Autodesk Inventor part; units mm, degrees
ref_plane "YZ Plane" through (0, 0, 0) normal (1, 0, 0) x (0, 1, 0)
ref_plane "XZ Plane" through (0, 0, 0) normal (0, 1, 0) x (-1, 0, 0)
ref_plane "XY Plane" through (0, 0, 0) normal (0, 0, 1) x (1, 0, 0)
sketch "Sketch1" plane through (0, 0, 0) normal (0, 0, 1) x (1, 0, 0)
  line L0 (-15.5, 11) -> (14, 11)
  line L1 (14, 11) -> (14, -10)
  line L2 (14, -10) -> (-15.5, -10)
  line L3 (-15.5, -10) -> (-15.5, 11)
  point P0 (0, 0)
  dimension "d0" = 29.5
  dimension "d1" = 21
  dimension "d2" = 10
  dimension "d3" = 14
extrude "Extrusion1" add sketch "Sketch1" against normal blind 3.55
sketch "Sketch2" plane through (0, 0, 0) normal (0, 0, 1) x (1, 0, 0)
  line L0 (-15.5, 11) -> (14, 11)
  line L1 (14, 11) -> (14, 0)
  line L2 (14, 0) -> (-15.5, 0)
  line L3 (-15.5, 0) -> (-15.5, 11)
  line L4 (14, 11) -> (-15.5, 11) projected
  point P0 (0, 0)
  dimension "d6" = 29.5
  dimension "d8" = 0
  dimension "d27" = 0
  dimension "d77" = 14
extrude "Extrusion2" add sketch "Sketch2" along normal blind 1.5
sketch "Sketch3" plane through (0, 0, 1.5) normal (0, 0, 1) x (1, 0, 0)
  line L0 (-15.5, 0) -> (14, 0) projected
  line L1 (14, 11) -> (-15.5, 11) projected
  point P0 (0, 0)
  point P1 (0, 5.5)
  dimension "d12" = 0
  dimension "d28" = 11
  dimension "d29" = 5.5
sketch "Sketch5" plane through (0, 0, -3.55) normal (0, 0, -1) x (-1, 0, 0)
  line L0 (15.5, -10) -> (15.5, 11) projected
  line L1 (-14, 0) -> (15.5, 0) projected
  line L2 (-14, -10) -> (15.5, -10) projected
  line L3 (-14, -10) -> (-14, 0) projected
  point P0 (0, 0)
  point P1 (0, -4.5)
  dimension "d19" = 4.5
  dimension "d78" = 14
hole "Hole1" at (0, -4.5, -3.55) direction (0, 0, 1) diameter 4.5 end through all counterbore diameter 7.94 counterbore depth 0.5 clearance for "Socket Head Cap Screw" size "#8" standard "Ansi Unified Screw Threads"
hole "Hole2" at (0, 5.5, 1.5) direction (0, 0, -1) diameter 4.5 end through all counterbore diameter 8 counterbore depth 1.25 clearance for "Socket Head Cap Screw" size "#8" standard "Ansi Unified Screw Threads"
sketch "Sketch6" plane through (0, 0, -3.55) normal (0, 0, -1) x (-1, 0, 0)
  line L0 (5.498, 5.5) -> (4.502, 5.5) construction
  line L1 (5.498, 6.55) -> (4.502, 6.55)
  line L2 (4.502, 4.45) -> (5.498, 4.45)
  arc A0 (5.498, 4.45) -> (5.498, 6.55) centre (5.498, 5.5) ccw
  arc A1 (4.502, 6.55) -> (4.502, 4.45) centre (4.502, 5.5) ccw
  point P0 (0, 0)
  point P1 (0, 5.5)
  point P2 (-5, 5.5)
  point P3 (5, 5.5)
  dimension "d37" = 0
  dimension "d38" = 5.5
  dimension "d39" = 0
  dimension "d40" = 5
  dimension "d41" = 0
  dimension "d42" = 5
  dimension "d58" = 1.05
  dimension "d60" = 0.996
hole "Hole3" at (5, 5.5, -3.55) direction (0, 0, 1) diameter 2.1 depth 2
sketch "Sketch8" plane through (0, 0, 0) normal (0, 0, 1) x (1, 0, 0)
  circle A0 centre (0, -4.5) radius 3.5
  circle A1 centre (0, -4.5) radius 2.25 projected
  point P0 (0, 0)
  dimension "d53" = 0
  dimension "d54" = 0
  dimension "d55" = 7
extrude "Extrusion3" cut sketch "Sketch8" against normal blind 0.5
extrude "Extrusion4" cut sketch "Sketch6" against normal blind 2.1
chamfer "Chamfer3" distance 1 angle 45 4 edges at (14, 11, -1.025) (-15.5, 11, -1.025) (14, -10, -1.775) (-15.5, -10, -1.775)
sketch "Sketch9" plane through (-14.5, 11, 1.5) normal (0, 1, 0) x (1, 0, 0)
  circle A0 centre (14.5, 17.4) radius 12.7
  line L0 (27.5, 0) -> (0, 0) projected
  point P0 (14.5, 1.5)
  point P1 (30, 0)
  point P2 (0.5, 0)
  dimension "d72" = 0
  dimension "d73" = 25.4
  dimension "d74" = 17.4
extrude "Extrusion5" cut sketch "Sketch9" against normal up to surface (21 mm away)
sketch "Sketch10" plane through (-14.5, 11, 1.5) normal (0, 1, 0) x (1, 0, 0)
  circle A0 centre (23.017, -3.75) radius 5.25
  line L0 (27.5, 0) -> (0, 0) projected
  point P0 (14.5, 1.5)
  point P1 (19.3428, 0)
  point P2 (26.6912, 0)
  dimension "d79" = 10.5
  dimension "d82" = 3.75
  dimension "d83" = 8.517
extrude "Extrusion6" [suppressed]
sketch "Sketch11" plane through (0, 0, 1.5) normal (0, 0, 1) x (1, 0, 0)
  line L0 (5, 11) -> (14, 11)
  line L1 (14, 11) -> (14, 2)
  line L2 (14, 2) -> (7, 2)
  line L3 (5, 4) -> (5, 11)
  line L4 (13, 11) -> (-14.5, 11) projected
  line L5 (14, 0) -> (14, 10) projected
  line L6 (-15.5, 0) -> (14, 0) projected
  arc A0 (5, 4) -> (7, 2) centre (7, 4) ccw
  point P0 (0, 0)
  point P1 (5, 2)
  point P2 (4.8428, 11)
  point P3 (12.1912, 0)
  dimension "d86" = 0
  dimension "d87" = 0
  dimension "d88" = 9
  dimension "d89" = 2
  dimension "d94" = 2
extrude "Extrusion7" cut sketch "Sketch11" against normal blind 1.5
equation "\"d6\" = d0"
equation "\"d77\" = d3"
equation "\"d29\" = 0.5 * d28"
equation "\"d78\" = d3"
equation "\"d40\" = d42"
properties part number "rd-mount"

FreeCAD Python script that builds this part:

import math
import FreeCAD as App
import Part
import Sketcher
Q = App.Units.Quantity


def edges_at(feature, points):
    """Names of the edges that pass closest to the given points."""
    edges = feature.Shape.Edges
    near = lambda p: min(range(len(edges)), key=lambda i: edges[i].distToShape(Part.Vertex(*p))[0])
    return sorted({f"Edge{near(p) + 1}" for p in points})


def add_polygon(sketch, points):
    """Adds a closed chain of lines whose ends are joined by coincident constraints."""
    first, n = sketch.GeometryCount, len(points)
    for a, b in zip(points, points[1:] + points[:1]):
        sketch.addGeometry(Part.LineSegment(App.Vector(*a, 0), App.Vector(*b, 0)), False)
    for i in range(n):
        sketch.addConstraint(Sketcher.Constraint("Coincident", first + i, 2, first + (i + 1) % n, 1))

doc = App.newDocument("Part")
body = doc.addObject("PartDesign::Body", "Body")

sketch1 = doc.addObject("Sketcher::SketchObject", "Sketch")
body.addObject(sketch1)
sketch1.AttachmentSupport = (doc.XY_Plane, [""])
sketch1.MapMode = "FlatFace"
add_polygon(sketch1, [(14, 11), (-15.5, 11), (-15.5, -10), (14, -10)])
sketch1.addConstraint(Sketcher.Constraint("Horizontal", 0))
sketch1.addConstraint(Sketcher.Constraint("Vertical", 1))
sketch1.addConstraint(Sketcher.Constraint("Horizontal", 2))
sketch1.addConstraint(Sketcher.Constraint("Vertical", 3))
sketch1.addConstraint(Sketcher.Constraint("DistanceY", 1, 2, 1, 1, Q("21 mm")))
sketch1.addConstraint(Sketcher.Constraint("DistanceX", 0, 2, 0, 1, Q("29.5 mm")))
sketch1.addConstraint(Sketcher.Constraint("DistanceY", 1, 2, -1, 1, Q("10 mm")))
sketch1.addConstraint(Sketcher.Constraint("DistanceX", -1, 1, 2, 2, Q("14 mm")))
pad1 = doc.addObject("PartDesign::Pad", "Pad")
body.addObject(pad1)
pad1.Profile = sketch1
pad1.Length = 3.55
pad1.Reversed = True

sketch2 = doc.addObject("Sketcher::SketchObject", "Sketch001")
body.addObject(sketch2)
sketch2.AttachmentSupport = (doc.XY_Plane, [""])
sketch2.MapMode = "FlatFace"
add_polygon(sketch2, [(14, 11), (-15.5, 11), (-15.5, 0), (14, 0)])
sketch2.addConstraint(Sketcher.Constraint("Horizontal", 0))
sketch2.addConstraint(Sketcher.Constraint("Vertical", 1))
sketch2.addConstraint(Sketcher.Constraint("Horizontal", 2))
sketch2.addConstraint(Sketcher.Constraint("Vertical", 3))
sketch2.addConstraint(Sketcher.Constraint("PointOnObject", 1, 2, -1))
sketch2.addConstraint(Sketcher.Constraint("DistanceX", 0, 2, 0, 1, Q("29.5 mm")))
sketch2.addConstraint(Sketcher.Constraint("DistanceX", -1, 1, 2, 2, Q("14 mm")))
sketch2.addConstraint(Sketcher.Constraint("DistanceY", 1, 2, 1, 1, Q("11 mm")))
pad2 = doc.addObject("PartDesign::Pad", "Pad001")
body.addObject(pad2)
pad2.Profile = sketch2
pad2.Length = 1.5

sketch3 = doc.addObject("Sketcher::SketchObject", "Sketch002")
body.addObject(sketch3)
sketch3.AttachmentSupport = (doc.XY_Plane, [""])
sketch3.MapMode = "FlatFace"
sketch3.AttachmentOffset = App.Placement(App.Vector(0, 0, -3.55), App.Rotation())
sketch3.addGeometry(Part.Circle(App.Vector(0, -4.5, 0), App.Vector(0, 0, 1), 2.25), False)
sketch3.addConstraint(Sketcher.Constraint("PointOnObject", 0, 3, -2))
sketch3.addConstraint(Sketcher.Constraint("Diameter", 0, Q("4.5 mm")))
sketch3.addConstraint(Sketcher.Constraint("DistanceY", 0, 3, -1, 1, Q("4.5 mm")))
doc.recompute()
hole = doc.addObject("PartDesign::Hole", "Hole")
body.addObject(hole)
hole.Profile = sketch3
hole.ThreadType = "None"
hole.Diameter = 4.5
hole.DepthType = "ThroughAll"
hole.HoleCutType = "Counterbore"
hole.HoleCutDiameter = 7.94
hole.HoleCutDepth = 0.5
hole.Reversed = True

sketch4 = doc.addObject("Sketcher::SketchObject", "Sketch003")
body.addObject(sketch4)
sketch4.AttachmentSupport = (doc.XY_Plane, [""])
sketch4.MapMode = "FlatFace"
sketch4.AttachmentOffset = App.Placement(App.Vector(0, 0, 1.5), App.Rotation())
sketch4.addGeometry(Part.Circle(App.Vector(0, 5.5, 0), App.Vector(0, 0, 1), 2.25), False)
sketch4.addConstraint(Sketcher.Constraint("PointOnObject", 0, 3, -2))
sketch4.addConstraint(Sketcher.Constraint("Diameter", 0, Q("4.5 mm")))
sketch4.addConstraint(Sketcher.Constraint("DistanceY", -1, 1, 0, 3, Q("5.5 mm")))
doc.recompute()
hole2 = doc.addObject("PartDesign::Hole", "Hole001")
body.addObject(hole2)
hole2.Profile = sketch4
hole2.ThreadType = "None"
hole2.Diameter = 4.5
hole2.DepthType = "ThroughAll"
hole2.HoleCutType = "Counterbore"
hole2.HoleCutDiameter = 8
hole2.HoleCutDepth = 1.25

sketch5 = doc.addObject("Sketcher::SketchObject", "Sketch004")
body.addObject(sketch5)
sketch5.AttachmentSupport = (doc.XY_Plane, [""])
sketch5.MapMode = "FlatFace"
sketch5.AttachmentOffset = App.Placement(App.Vector(0, 0, -3.55), App.Rotation())
sketch5.addGeometry(Part.Circle(App.Vector(5, 5.5, 0), App.Vector(0, 0, 1), 1.05), False)
sketch5.addConstraint(Sketcher.Constraint("Diameter", 0, Q("2.1 mm")))
sketch5.addConstraint(Sketcher.Constraint("DistanceX", -1, 1, 0, 3, Q("5 mm")))
sketch5.addConstraint(Sketcher.Constraint("DistanceY", -1, 1, 0, 3, Q("5.5 mm")))
doc.recompute()
hole3 = doc.addObject("PartDesign::Hole", "Hole002")
body.addObject(hole3)
hole3.Profile = sketch5
hole3.ThreadType = "None"
hole3.Diameter = 2.1
hole3.DepthType = "Dimension"
hole3.Depth = 2
hole3.DrillPoint = "Flat"
hole3.Reversed = True

sketch6 = doc.addObject("Sketcher::SketchObject", "Sketch005")
body.addObject(sketch6)
sketch6.AttachmentSupport = (doc.XY_Plane, [""])
sketch6.MapMode = "FlatFace"
sketch6.addGeometry(Part.Circle(App.Vector(0, -4.5, 0), App.Vector(0, 0, 1), 3.5), False)
sketch6.addGeometry(Part.Circle(App.Vector(0, -4.5, 0), App.Vector(0, 0, 1), 2.25), False)
sketch6.addConstraint(Sketcher.Constraint("Coincident", 1, 3, 0, 3))
sketch6.addConstraint(Sketcher.Constraint("PointOnObject", 0, 3, -2))
sketch6.addConstraint(Sketcher.Constraint("Diameter", 0, Q("7 mm")))
sketch6.addConstraint(Sketcher.Constraint("Diameter", 1, Q("4.5 mm")))
sketch6.addConstraint(Sketcher.Constraint("DistanceY", 0, 3, -1, 1, Q("4.5 mm")))
pocket1 = doc.addObject("PartDesign::Pocket", "Pocket")
body.addObject(pocket1)
pocket1.Profile = sketch6
pocket1.Length = 0.5

sketch7 = doc.addObject("Sketcher::SketchObject", "Sketch006")
body.addObject(sketch7)
sketch7.AttachmentSupport = (doc.XY_Plane, [""])
sketch7.MapMode = "FlatFace"
sketch7.AttachmentOffset = App.Placement(App.Vector(0, 0, -3.55), App.Rotation())
sketch7.addGeometry(Part.ArcOfCircle(Part.Circle(App.Vector(-5.498, 5.5, 0), App.Vector(0, 0, 1), 1.05), math.radians(90), math.radians(270)), False)
sketch7.addGeometry(Part.LineSegment(App.Vector(-5.498, 6.55, 0), App.Vector(-4.502, 6.55, 0)), False)
sketch7.addGeometry(Part.ArcOfCircle(Part.Circle(App.Vector(-4.502, 5.5, 0), App.Vector(0, 0, 1), 1.05), math.radians(-90), math.radians(90)), False)
sketch7.addGeometry(Part.LineSegment(App.Vector(-4.502, 4.45, 0), App.Vector(-5.498, 4.45, 0)), False)
sketch7.addConstraint(Sketcher.Constraint("Tangent", 0, 1, 1, 1))
sketch7.addConstraint(Sketcher.Constraint("Tangent", 1, 2, 2, 2))
sketch7.addConstraint(Sketcher.Constraint("Tangent", 2, 1, 3, 1))
sketch7.addConstraint(Sketcher.Constraint("Tangent", 3, 2, 0, 2))
sketch7.addConstraint(Sketcher.Constraint("Horizontal", 1))
sketch7.addConstraint(Sketcher.Constraint("Horizontal", 3))
sketch7.addConstraint(Sketcher.Constraint("Radius", 0, Q("1.05 mm")))
sketch7.addConstraint(Sketcher.Constraint("DistanceY", -1, 1, 0, 3, Q("5.5 mm")))
sketch7.addConstraint(Sketcher.Constraint("DistanceX", 1, 1, 1, 2, Q("0.996 mm")))
sketch7.addConstraint(Sketcher.Constraint("DistanceX", 0, 3, -1, 1, Q("5.498 mm")))
pocket2 = doc.addObject("PartDesign::Pocket", "Pocket001")
body.addObject(pocket2)
pocket2.Profile = sketch7
pocket2.Length = 2.1
pocket2.Reversed = True
doc.recompute()

chamfer = doc.addObject("PartDesign::Chamfer", "Chamfer")
body.addObject(chamfer)
chamfer.Base = (pocket2, edges_at(pocket2, [
    (14, 11, -1.025),
    (-15.5, 11, -1.025),
    (14, -10, -1.775),
    (-15.5, -10, -1.775),
]))
chamfer.Size = 1

sketch8 = doc.addObject("Sketcher::SketchObject", "Sketch007")
body.addObject(sketch8)
sketch8.AttachmentSupport = (doc.XZ_Plane, [""])
sketch8.MapMode = "FlatFace"
sketch8.AttachmentOffset = App.Placement(App.Vector(0, 0, -11), App.Rotation())
sketch8.addGeometry(Part.Circle(App.Vector(0, -15.9, 0), App.Vector(0, 0, 1), 12.7), False)
sketch8.addConstraint(Sketcher.Constraint("PointOnObject", 0, 3, -2))
sketch8.addConstraint(Sketcher.Constraint("Diameter", 0, Q("25.4 mm")))
sketch8.addConstraint(Sketcher.Constraint("DistanceY", 0, 3, -1, 1, Q("15.9 mm")))
pocket3 = doc.addObject("PartDesign::Pocket", "Pocket002")
body.addObject(pocket3)
pocket3.Profile = sketch8
pocket3.Length = 21
pocket3.Reversed = True

sketch9 = doc.addObject("Sketcher::SketchObject", "Sketch008")
body.addObject(sketch9)
sketch9.AttachmentSupport = (doc.XY_Plane, [""])
sketch9.MapMode = "FlatFace"
sketch9.AttachmentOffset = App.Placement(App.Vector(0, 0, 1.5), App.Rotation())
sketch9.addGeometry(Part.LineSegment(App.Vector(14, 11, 0), App.Vector(5, 11, 0)), False)
sketch9.addGeometry(Part.LineSegment(App.Vector(5, 11, 0), App.Vector(5, 4, 0)), False)
sketch9.addGeometry(Part.ArcOfCircle(Part.Circle(App.Vector(7, 4, 0), App.Vector(0, 0, 1), 2), math.radians(180), math.radians(270)), False)
sketch9.addGeometry(Part.LineSegment(App.Vector(7, 2, 0), App.Vector(14, 2, 0)), False)
sketch9.addGeometry(Part.LineSegment(App.Vector(14, 2, 0), App.Vector(14, 11, 0)), False)
sketch9.addConstraint(Sketcher.Constraint("Coincident", 0, 2, 1, 1))
sketch9.addConstraint(Sketcher.Constraint("Tangent", 1, 2, 2, 1))
sketch9.addConstraint(Sketcher.Constraint("Tangent", 2, 2, 3, 1))
sketch9.addConstraint(Sketcher.Constraint("Coincident", 3, 2, 4, 1))
sketch9.addConstraint(Sketcher.Constraint("Coincident", 4, 2, 0, 1))
sketch9.addConstraint(Sketcher.Constraint("Horizontal", 0))
sketch9.addConstraint(Sketcher.Constraint("Vertical", 1))
sketch9.addConstraint(Sketcher.Constraint("Horizontal", 3))
sketch9.addConstraint(Sketcher.Constraint("Vertical", 4))
sketch9.addConstraint(Sketcher.Constraint("Equal", 3, 1))
sketch9.addConstraint(Sketcher.Constraint("Radius", 2, Q("2 mm")))
sketch9.addConstraint(Sketcher.Constraint("DistanceX", 0, 2, 0, 1, Q("9 mm")))
sketch9.addConstraint(Sketcher.Constraint("DistanceY", -1, 1, 2, 2, Q("2 mm")))
sketch9.addConstraint(Sketcher.Constraint("DistanceX", -1, 1, 2, 3, Q("7 mm")))
pocket4 = doc.addObject("PartDesign::Pocket", "Pocket003")
body.addObject(pocket4)
pocket4.Profile = sketch9
pocket4.Length = 1.5

doc.recompute()
